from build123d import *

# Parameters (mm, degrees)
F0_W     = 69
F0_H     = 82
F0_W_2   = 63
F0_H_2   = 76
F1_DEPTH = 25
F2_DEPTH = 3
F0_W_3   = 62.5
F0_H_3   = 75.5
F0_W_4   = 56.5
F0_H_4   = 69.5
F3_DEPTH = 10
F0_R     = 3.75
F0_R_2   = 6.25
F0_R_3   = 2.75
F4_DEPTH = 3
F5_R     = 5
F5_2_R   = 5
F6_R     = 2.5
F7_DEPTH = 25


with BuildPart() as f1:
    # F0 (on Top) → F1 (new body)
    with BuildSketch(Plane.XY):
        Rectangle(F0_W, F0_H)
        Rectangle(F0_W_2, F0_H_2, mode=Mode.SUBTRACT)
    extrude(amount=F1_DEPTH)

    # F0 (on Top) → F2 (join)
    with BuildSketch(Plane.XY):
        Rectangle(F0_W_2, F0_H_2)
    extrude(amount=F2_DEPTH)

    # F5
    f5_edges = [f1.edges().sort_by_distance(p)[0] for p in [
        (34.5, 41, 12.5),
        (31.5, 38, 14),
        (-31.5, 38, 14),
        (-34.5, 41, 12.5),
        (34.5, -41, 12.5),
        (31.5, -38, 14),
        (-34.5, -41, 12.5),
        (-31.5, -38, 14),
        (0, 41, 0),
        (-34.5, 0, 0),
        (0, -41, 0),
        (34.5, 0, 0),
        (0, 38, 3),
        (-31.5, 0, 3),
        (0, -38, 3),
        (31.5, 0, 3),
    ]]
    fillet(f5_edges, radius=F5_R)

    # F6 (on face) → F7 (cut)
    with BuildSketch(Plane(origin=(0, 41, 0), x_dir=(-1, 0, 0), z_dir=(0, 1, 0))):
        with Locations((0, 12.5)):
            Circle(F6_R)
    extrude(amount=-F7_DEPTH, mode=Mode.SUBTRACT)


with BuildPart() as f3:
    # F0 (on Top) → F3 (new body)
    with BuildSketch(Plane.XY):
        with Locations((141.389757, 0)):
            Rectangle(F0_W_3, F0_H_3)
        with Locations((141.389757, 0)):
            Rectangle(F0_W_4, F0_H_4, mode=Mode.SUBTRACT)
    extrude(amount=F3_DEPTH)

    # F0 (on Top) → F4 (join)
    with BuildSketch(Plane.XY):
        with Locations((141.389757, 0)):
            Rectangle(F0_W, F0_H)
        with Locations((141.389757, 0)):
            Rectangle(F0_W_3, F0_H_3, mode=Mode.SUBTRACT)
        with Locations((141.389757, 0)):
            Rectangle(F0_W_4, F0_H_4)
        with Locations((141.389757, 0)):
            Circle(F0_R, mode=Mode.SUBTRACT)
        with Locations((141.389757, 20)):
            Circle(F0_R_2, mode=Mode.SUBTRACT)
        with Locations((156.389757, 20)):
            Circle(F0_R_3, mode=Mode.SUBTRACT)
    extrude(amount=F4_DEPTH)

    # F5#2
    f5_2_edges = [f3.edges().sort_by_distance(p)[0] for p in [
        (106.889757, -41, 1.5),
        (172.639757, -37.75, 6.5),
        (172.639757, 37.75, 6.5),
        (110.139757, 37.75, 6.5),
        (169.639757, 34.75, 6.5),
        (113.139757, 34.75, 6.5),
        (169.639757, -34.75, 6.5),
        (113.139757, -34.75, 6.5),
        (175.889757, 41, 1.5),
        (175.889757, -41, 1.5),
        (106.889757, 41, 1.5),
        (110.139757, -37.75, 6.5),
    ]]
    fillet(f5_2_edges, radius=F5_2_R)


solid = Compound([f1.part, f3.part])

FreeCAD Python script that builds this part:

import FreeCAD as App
import Part
import Sketcher

V = App.Vector
Q = App.Units.Quantity


def edges_at(feature, points):
    """Names of the edges that pass closest to the given points."""
    edges = feature.Shape.Edges
    near = lambda p: min(range(len(edges)), key=lambda i: edges[i].distToShape(Part.Vertex(*p))[0])
    return sorted({f"Edge{near(p) + 1}" for p in points})


def add_polygon(sketch, points):
    """Adds a closed chain of lines whose ends are joined by coincident constraints."""
    first, n = sketch.GeometryCount, len(points)
    for a, b in zip(points, points[1:] + points[:1]):
        sketch.addGeometry(Part.LineSegment(App.Vector(*a, 0), App.Vector(*b, 0)), False)
    for i in range(n):
        sketch.addConstraint(Sketcher.Constraint("Coincident", first + i, 2, first + (i + 1) % n, 1))

doc = App.newDocument("Part")
body = doc.addObject("PartDesign::Body", "Body")

# Sketch on XY plane
sketch1 = body.newObject("Sketcher::SketchObject", "Sketch")
sketch1.AttachmentSupport = (doc.getObject("XY_Plane"), [""])
sketch1.MapMode = "FlatFace"
add_polygon(sketch1, [(-34, 41), (-34, -41), (34, -41), (34, 41)])  # lines 0-3
add_polygon(sketch1, [(32, -38), (-32, -38), (-32, 38), (32, 38)])  # lines 4-7
sketch1.addConstraint(Sketcher.Constraint("Vertical", 0))
sketch1.addConstraint(Sketcher.Constraint("Horizontal", 1))
sketch1.addConstraint(Sketcher.Constraint("Vertical", 2))
sketch1.addConstraint(Sketcher.Constraint("Horizontal", 3))
sketch1.addConstraint(Sketcher.Constraint("Horizontal", 4))
sketch1.addConstraint(Sketcher.Constraint("Vertical", 5))
sketch1.addConstraint(Sketcher.Constraint("Horizontal", 6))
sketch1.addConstraint(Sketcher.Constraint("Vertical", 7))
sketch1.addConstraint(Sketcher.Constraint("Symmetric", 0, 2, 2, 2, -1, 1))
sketch1.addConstraint(Sketcher.Constraint("Symmetric", 4, 2, 6, 2, -1, 1))
sketch1.addConstraint(Sketcher.Constraint("DistanceX", 1, 1, 1, 2, Q("69 mm")))
sketch1.addConstraint(Sketcher.Constraint("DistanceX", 4, 2, 4, 1, Q("63 mm")))
sketch1.addConstraint(Sketcher.Constraint("DistanceY", 0, 2, 0, 1, Q("82 mm")))
sketch1.addConstraint(Sketcher.Constraint("DistanceY", 5, 1, 5, 2, Q("76 mm")))
pad1 = body.newObject("PartDesign::Pad", "Pad")
pad1.Profile = sketch1
pad1.Length = 25

# Sketch on XY plane
sketch2 = body.newObject("Sketcher::SketchObject", "Sketch001")
sketch2.AttachmentSupport = (doc.getObject("XY_Plane"), [""])
sketch2.MapMode = "FlatFace"
add_polygon(sketch2, [(-32, 38), (-32, -38), (32, -38), (32, 38)])  # lines 0-3
sketch2.addConstraint(Sketcher.Constraint("Vertical", 0))
sketch2.addConstraint(Sketcher.Constraint("Horizontal", 1))
sketch2.addConstraint(Sketcher.Constraint("Vertical", 2))
sketch2.addConstraint(Sketcher.Constraint("Horizontal", 3))
sketch2.addConstraint(Sketcher.Constraint("Symmetric", 0, 2, 2, 2, -1, 1))
sketch2.addConstraint(Sketcher.Constraint("DistanceX", 1, 1, 1, 2, Q("63 mm")))
sketch2.addConstraint(Sketcher.Constraint("DistanceY", 0, 2, 0, 1, Q("76 mm")))
pad2 = body.newObject("PartDesign::Pad", "Pad001")
pad2.Profile = sketch2
pad2.Length = 3
doc.recompute()

fillet = body.newObject("PartDesign::Fillet", "Fillet")
fillet.Base = (pad2, edges_at(pad2, [
    (34.5, 41, 12.5),
    (31.5, 38, 14),
    (-31.5, 38, 14),
    (-34.5, 41, 12.5),
    (34.5, -41, 12.5),
    (31.5, -38, 14),
    (-34.5, -41, 12.5),
    (-31.5, -38, 14),
    (0, 41, 0),
    (-34.5, 0, 0),
    (0, -41, 0),
    (34.5, 0, 0),
    (0, 38, 3),
    (-31.5, 0, 3),
    (0, -38, 3),
    (31.5, 0, 3),
]))
fillet.Radius = 5

# Sketch on XZ plane
sketch3 = body.newObject("Sketcher::SketchObject", "Sketch002")
sketch3.AttachmentSupport = (doc.getObject("XZ_Plane"), [""])
sketch3.MapMode = "FlatFace"
sketch3.AttachmentOffset = App.Placement(V(0, 0, -41), App.Rotation())
sketch3.addGeometry(Part.Circle(V(0, 12.5, 0), V(0, 0, 1), 2.5), False)
sketch3.addConstraint(Sketcher.Constraint("PointOnObject", 0, 3, -2))
sketch3.addConstraint(Sketcher.Constraint("Diameter", 0, Q("5 mm")))
sketch3.addConstraint(Sketcher.Constraint("DistanceY", -1, 1, 0, 3, Q("12.5 mm")))
pocket1 = body.newObject("PartDesign::Pocket", "Pocket")
pocket1.Profile = sketch3
pocket1.Length = 25
pocket1.Reversed = True
body2 = doc.addObject("PartDesign::Body", "Body001")

# Sketch on XY plane
sketch4 = body2.newObject("Sketcher::SketchObject", "Sketch003")
sketch4.AttachmentSupport = (doc.getObject("XY_Plane001"), [""])
sketch4.MapMode = "FlatFace"
add_polygon(sketch4, [(110, 38), (110, -38), (173, -38), (173, 38)])  # lines 0-3
add_polygon(sketch4, [(170, -35), (113, -35), (113, 35), (170, 35)])  # lines 4-7
sketch4.addConstraint(Sketcher.Constraint("Vertical", 0))
sketch4.addConstraint(Sketcher.Constraint("Horizontal", 1))
sketch4.addConstraint(Sketcher.Constraint("Vertical", 2))
sketch4.addConstraint(Sketcher.Constraint("Horizontal", 3))
sketch4.addConstraint(Sketcher.Constraint("Horizontal", 4))
sketch4.addConstraint(Sketcher.Constraint("Vertical", 5))
sketch4.addConstraint(Sketcher.Constraint("Horizontal", 6))
sketch4.addConstraint(Sketcher.Constraint("Vertical", 7))
sketch4.addConstraint(Sketcher.Constraint("DistanceX", 1, 1, 1, 2, Q("62.5 mm")))
sketch4.addConstraint(Sketcher.Constraint("DistanceX", 4, 2, 4, 1, Q("56.5 mm")))
sketch4.addConstraint(Sketcher.Constraint("DistanceY", 0, 2, 0, 1, Q("75.5 mm")))
sketch4.addConstraint(Sketcher.Constraint("DistanceY", 5, 1, 5, 2, Q("69.5 mm")))
sketch4.addConstraint(Sketcher.Constraint("DistanceX", 0, 2, 4, 2, Q("3 mm")))
sketch4.addConstraint(Sketcher.Constraint("DistanceY", 0, 2, 4, 2, Q("3 mm")))
sketch4.addConstraint(Sketcher.Constraint("DistanceY", 0, 2, -1, 1, Q("37.75 mm")))
sketch4.addConstraint(Sketcher.Constraint("DistanceX", -1, 1, 0, 2, Q("110.139757 mm")))
pad3 = body2.newObject("PartDesign::Pad", "Pad002")
pad3.Profile = sketch4
pad3.Length = 10

# Sketch on XY plane
sketch5 = body2.newObject("Sketcher::SketchObject", "Sketch004")
sketch5.AttachmentSupport = (doc.getObject("XY_Plane001"), [""])
sketch5.MapMode = "FlatFace"
add_polygon(sketch5, [(106.9, 41), (106.9, -41), (175.9, -41), (175.9, 41)])  # lines 0-3
add_polygon(sketch5, [(172.6, -37.8), (110.1, -37.8), (110.1, 37.8), (172.6, 37.8)])  # lines 4-7
add_polygon(sketch5, [(113.1, 34.8), (113.1, -34.8), (169.6, -34.8), (169.6, 34.8)])  # lines 8-11
sketch5.addGeometry(Part.Circle(V(141.4, 0, 0), V(0, 0, 1), 3.8), False)  # 12
sketch5.addGeometry(Part.Circle(V(141.4, 20, 0), V(0, 0, 1), 6.2), False)  # 13
sketch5.addGeometry(Part.Circle(V(156.4, 20, 0), V(0, 0, 1), 2.8), False)  # 14
sketch5.addConstraint(Sketcher.Constraint("Vertical", 0))
sketch5.addConstraint(Sketcher.Constraint("Horizontal", 1))
sketch5.addConstraint(Sketcher.Constraint("Vertical", 2))
sketch5.addConstraint(Sketcher.Constraint("Horizontal", 3))
sketch5.addConstraint(Sketcher.Constraint("Horizontal", 4))
sketch5.addConstraint(Sketcher.Constraint("Vertical", 5))
sketch5.addConstraint(Sketcher.Constraint("Horizontal", 6))
sketch5.addConstraint(Sketcher.Constraint("Vertical", 7))
sketch5.addConstraint(Sketcher.Constraint("Vertical", 8))
sketch5.addConstraint(Sketcher.Constraint("Horizontal", 9))
sketch5.addConstraint(Sketcher.Constraint("Vertical", 10))
sketch5.addConstraint(Sketcher.Constraint("Horizontal", 11))
sketch5.addConstraint(Sketcher.Constraint("PointOnObject", 12, 3, -1))
sketch5.addConstraint(Sketcher.Constraint("Horizontal", 13, 3, 14, 3))
sketch5.addConstraint(Sketcher.Constraint("Vertical", 12, 3, 13, 3))
sketch5.addConstraint(Sketcher.Constraint("Diameter", 12, Q("7.5 mm")))
sketch5.addConstraint(Sketcher.Constraint("Diameter", 13, Q("12.5 mm")))
sketch5.addConstraint(Sketcher.Constraint("Diameter", 14, Q("5.5 mm")))
sketch5.addConstraint(Sketcher.Constraint("DistanceX", 1, 1, 1, 2, Q("69 mm")))
sketch5.addConstraint(Sketcher.Constraint("DistanceY", 0, 2, 0, 1, Q("82 mm")))
sketch5.addConstraint(Sketcher.Constraint("DistanceX", 4, 2, 4, 1, Q("62.5 mm")))
sketch5.addConstraint(Sketcher.Constraint("DistanceX", 9, 1, 9, 2, Q("56.5 mm")))
sketch5.addConstraint(Sketcher.Constraint("DistanceY", 5, 1, 5, 2, Q("75.5 mm")))
sketch5.addConstraint(Sketcher.Constraint("DistanceY", 8, 2, 8, 1, Q("69.5 mm")))
sketch5.addConstraint(Sketcher.Constraint("DistanceY", -1, 1, 13, 3, Q("20 mm")))
sketch5.addConstraint(Sketcher.Constraint("DistanceY", 0, 2, -1, 1, Q("41 mm")))
sketch5.addConstraint(Sketcher.Constraint("DistanceX", 13, 3, 14, 3, Q("15 mm")))
sketch5.addConstraint(Sketcher.Constraint("DistanceX", 4, 2, 8, 2, Q("3 mm")))
sketch5.addConstraint(Sketcher.Constraint("DistanceY", 4, 2, 8, 2, Q("3 mm")))
sketch5.addConstraint(Sketcher.Constraint("DistanceX", 0, 2, 12, 3, Q("34.5 mm")))
sketch5.addConstraint(Sketcher.Constraint("DistanceY", 4, 2, -1, 1, Q("37.75 mm")))
sketch5.addConstraint(Sketcher.Constraint("DistanceX", 0, 2, 4, 2, Q("3.25 mm")))
sketch5.addConstraint(Sketcher.Constraint("DistanceX", -1, 1, 12, 3, Q("141.389757 mm")))
pad4 = body2.newObject("PartDesign::Pad", "Pad003")
pad4.Profile = sketch5
pad4.Length = 3
doc.recompute()

fillet2 = body2.newObject("PartDesign::Fillet", "Fillet001")
fillet2.Base = (pad4, edges_at(pad4, [
    (106.89, -41, 1.5),
    (172.64, -37.75, 6.5),
    (172.64, 37.75, 6.5),
    (110.14, 37.75, 6.5),
    (169.64, 34.75, 6.5),
    (113.14, 34.75, 6.5),
    (169.64, -34.75, 6.5),
    (113.14, -34.75, 6.5),
    (175.89, 41, 1.5),
    (175.89, -41, 1.5),
    (106.89, 41, 1.5),
    (110.14, -37.75, 6.5),
]))
fillet2.Radius = 5

doc.recompute()
